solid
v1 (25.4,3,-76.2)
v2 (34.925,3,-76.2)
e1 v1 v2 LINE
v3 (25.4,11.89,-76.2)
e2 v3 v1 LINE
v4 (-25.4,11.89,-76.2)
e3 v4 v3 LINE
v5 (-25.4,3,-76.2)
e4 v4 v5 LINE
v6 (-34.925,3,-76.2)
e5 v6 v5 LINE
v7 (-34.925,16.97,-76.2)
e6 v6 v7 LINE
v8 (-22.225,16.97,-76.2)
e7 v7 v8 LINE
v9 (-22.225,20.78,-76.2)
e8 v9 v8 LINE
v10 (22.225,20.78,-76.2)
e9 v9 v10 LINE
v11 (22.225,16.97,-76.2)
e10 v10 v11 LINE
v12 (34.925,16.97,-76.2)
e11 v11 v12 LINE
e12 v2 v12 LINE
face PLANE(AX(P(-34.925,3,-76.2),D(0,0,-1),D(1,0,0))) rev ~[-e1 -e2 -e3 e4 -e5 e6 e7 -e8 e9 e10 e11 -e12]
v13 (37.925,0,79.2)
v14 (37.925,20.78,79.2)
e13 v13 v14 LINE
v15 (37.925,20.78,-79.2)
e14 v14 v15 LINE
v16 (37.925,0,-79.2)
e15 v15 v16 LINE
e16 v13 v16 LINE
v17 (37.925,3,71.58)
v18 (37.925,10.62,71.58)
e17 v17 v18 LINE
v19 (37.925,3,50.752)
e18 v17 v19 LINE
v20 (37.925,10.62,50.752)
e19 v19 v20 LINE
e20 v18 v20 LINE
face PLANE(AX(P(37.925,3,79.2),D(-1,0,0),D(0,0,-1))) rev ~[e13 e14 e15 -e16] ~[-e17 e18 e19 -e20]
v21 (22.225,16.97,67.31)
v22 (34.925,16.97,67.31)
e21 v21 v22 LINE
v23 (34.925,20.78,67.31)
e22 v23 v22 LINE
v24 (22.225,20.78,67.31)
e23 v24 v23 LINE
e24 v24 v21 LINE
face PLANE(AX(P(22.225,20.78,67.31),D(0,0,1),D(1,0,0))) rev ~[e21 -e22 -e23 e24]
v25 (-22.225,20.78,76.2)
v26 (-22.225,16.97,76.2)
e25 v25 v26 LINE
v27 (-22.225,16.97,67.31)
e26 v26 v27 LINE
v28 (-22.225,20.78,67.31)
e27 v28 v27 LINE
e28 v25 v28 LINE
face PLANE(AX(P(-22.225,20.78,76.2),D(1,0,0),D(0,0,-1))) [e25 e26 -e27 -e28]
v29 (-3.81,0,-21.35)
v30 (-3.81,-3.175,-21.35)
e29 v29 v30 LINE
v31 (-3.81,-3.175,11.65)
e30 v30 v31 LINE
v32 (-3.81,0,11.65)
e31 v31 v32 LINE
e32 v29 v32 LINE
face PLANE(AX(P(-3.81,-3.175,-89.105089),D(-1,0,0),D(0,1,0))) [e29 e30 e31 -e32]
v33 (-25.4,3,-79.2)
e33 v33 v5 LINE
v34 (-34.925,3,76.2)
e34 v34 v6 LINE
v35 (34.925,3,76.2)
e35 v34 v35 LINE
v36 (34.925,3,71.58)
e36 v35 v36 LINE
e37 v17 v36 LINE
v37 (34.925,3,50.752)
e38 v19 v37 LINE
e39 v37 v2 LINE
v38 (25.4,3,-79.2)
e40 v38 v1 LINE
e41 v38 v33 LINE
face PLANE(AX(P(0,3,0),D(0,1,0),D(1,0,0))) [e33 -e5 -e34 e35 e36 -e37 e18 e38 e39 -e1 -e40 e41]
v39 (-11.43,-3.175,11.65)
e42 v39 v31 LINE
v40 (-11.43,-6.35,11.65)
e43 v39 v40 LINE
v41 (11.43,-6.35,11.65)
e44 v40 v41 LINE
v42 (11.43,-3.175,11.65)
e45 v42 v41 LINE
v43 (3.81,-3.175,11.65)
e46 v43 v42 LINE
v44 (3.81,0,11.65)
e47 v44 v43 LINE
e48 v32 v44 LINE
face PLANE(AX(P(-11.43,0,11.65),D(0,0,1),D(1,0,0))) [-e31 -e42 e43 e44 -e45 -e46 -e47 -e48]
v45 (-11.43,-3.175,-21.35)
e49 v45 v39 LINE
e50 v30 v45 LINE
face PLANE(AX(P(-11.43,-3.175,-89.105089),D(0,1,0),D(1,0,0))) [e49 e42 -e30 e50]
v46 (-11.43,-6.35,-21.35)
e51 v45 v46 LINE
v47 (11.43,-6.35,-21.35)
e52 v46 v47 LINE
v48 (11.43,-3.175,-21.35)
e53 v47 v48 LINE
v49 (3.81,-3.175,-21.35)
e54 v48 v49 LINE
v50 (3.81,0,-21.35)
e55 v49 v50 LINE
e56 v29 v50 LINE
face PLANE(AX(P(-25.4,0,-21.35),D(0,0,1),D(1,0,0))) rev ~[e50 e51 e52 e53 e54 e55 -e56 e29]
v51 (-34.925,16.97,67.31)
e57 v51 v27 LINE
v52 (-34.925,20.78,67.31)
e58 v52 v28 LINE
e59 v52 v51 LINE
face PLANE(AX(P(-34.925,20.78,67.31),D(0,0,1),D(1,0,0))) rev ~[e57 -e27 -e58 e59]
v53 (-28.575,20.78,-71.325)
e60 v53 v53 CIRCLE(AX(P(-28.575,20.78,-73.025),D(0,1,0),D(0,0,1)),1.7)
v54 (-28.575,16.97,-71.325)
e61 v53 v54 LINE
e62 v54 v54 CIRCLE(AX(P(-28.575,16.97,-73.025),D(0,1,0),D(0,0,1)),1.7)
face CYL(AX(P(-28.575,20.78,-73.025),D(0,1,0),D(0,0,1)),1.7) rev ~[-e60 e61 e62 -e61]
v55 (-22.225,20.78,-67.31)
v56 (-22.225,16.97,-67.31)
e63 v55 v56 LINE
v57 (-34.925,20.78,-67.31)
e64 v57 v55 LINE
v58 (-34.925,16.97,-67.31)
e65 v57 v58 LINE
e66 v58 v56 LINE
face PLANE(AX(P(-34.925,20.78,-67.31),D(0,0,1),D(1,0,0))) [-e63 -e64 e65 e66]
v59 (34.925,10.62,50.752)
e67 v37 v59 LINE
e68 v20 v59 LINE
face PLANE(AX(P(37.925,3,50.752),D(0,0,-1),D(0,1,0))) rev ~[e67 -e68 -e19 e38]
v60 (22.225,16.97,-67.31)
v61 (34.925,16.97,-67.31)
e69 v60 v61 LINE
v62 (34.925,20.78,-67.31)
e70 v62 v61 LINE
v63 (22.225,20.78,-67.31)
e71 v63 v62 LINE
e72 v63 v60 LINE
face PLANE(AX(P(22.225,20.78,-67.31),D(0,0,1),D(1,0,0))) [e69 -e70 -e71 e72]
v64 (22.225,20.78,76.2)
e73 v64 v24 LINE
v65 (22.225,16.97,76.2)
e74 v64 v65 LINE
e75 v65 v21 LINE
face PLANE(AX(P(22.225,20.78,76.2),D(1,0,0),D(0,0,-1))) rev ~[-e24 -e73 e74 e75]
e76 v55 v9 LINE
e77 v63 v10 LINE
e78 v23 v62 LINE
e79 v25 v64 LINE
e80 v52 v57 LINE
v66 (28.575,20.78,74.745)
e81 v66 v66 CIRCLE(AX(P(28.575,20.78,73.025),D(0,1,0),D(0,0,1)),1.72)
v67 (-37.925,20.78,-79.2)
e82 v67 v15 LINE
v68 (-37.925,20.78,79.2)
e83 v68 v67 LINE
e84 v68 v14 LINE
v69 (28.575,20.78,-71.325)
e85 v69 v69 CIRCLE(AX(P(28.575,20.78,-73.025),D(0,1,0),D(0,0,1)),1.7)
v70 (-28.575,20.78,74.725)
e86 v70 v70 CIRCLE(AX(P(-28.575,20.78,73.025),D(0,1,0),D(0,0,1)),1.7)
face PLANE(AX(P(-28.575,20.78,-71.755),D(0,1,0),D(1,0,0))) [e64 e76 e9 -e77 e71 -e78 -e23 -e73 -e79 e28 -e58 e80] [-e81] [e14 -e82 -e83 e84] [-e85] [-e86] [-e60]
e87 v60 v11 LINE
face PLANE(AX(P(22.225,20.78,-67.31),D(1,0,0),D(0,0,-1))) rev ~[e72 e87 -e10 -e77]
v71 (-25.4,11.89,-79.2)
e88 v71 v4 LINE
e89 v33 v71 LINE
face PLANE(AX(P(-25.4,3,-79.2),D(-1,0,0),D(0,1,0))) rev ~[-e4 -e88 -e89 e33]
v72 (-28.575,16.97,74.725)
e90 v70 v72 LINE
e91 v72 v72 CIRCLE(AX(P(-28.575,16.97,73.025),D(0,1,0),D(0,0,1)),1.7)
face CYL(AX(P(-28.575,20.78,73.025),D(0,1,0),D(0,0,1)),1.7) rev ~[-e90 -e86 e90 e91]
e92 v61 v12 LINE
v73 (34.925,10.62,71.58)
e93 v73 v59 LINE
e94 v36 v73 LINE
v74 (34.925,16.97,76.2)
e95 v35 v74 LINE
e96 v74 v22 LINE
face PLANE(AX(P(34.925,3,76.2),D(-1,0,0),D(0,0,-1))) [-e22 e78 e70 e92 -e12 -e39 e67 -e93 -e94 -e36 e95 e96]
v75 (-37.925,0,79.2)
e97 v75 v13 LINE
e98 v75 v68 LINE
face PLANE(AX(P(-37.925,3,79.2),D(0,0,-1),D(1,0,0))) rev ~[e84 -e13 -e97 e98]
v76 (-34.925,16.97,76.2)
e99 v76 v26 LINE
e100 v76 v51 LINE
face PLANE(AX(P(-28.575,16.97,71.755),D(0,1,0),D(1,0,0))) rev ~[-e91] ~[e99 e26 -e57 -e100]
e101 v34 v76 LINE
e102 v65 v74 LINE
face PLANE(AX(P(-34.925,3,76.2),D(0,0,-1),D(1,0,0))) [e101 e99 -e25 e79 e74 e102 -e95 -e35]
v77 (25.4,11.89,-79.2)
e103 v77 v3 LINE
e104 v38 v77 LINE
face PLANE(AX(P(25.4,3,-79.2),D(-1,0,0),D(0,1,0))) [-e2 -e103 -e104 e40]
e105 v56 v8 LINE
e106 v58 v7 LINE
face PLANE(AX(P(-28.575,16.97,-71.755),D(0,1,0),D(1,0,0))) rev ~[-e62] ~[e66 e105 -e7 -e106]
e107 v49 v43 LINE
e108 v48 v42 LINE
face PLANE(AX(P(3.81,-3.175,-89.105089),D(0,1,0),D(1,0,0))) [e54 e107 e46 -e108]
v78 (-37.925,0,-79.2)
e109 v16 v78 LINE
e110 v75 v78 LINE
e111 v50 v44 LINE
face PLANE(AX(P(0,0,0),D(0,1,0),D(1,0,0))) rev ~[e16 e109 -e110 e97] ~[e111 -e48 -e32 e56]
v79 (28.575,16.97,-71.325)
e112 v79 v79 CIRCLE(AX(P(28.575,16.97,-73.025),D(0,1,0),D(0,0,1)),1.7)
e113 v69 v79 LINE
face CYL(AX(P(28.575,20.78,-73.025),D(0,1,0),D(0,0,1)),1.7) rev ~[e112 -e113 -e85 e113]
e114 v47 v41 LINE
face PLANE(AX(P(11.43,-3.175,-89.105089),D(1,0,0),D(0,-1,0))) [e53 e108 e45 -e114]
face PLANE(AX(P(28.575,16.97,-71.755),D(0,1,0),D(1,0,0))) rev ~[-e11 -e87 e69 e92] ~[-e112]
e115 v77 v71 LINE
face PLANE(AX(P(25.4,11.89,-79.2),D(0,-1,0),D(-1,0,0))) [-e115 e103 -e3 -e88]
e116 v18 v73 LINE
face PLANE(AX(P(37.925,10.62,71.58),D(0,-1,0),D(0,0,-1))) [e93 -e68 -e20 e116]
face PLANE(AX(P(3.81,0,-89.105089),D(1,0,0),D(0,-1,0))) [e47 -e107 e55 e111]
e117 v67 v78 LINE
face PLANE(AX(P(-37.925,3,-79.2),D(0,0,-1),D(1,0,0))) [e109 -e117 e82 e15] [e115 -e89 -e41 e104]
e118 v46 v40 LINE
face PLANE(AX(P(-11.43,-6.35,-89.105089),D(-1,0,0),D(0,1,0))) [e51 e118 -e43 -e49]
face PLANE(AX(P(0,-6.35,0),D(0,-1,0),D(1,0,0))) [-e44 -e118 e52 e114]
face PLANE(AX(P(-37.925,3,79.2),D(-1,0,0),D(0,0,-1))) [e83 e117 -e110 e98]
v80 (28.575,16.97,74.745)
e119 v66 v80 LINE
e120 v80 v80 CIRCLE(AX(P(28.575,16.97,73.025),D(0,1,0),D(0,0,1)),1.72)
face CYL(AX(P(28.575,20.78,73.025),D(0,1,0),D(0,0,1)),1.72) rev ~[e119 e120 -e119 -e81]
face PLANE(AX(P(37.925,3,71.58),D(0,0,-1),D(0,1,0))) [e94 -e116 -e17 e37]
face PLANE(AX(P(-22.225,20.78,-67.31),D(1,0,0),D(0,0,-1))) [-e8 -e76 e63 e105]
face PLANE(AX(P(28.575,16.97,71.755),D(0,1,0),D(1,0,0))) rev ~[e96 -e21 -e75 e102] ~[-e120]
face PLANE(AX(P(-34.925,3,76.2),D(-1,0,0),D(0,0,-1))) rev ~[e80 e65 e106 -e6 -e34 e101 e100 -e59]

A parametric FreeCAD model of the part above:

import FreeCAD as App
import Part
import Sketcher
from FreeCAD import Vector
Q = App.Units.Quantity

doc = App.newDocument("Part")
body = doc.addObject("PartDesign::Body", "Body")

# Sketch on XZ plane
sketch1 = doc.addObject("Sketcher::SketchObject", "Sketch")
body.addObject(sketch1)
sketch1.AttachmentSupport = (doc.XZ_Plane, [""])
sketch1.MapMode = "FlatFace"
sketch1.addGeometry(Part.LineSegment(Vector(-38, -79, 0), Vector(-38, 79, 0)), False)
sketch1.addGeometry(Part.LineSegment(Vector(-38, 79, 0), Vector(38, 79, 0)), False)
sketch1.addGeometry(Part.LineSegment(Vector(38, 79, 0), Vector(38, -79, 0)), False)
sketch1.addGeometry(Part.LineSegment(Vector(38, -79, 0), Vector(-38, -79, 0)), False)
sketch1.addConstraint(Sketcher.Constraint("Coincident", 0, 2, 1, 1))
sketch1.addConstraint(Sketcher.Constraint("Coincident", 1, 2, 2, 1))
sketch1.addConstraint(Sketcher.Constraint("Coincident", 2, 2, 3, 1))
sketch1.addConstraint(Sketcher.Constraint("Coincident", 3, 2, 0, 1))
sketch1.addConstraint(Sketcher.Constraint("Vertical", 0))
sketch1.addConstraint(Sketcher.Constraint("Horizontal", 1))
sketch1.addConstraint(Sketcher.Constraint("Vertical", 2))
sketch1.addConstraint(Sketcher.Constraint("Horizontal", 3))
sketch1.addConstraint(Sketcher.Constraint("Symmetric", 0, 2, 2, 2, -1, 1))
sketch1.addConstraint(Sketcher.Constraint("DistanceX", 1, 1, 1, 2, 75.85))
sketch1.addConstraint(Sketcher.Constraint("DistanceY", 0, 1, 0, 2, 158.4))
pad1 = doc.addObject("PartDesign::Pad", "Pad")
body.addObject(pad1)
pad1.Profile = sketch1
pad1.Length = 3
pad1.Reversed = True

# Sketch on XZ plane
sketch2 = doc.addObject("Sketcher::SketchObject", "Sketch001")
body.addObject(sketch2)
sketch2.AttachmentSupport = (doc.XZ_Plane, [""])
sketch2.MapMode = "FlatFace"
sketch2.AttachmentOffset = App.Placement(Vector(0, 0, -3), App.Rotation())
sketch2.addGeometry(Part.LineSegment(Vector(-38, -79, 0), Vector(-38, 79, 0)), False)
sketch2.addGeometry(Part.LineSegment(Vector(-38, 79, 0), Vector(38, 79, 0)), False)
sketch2.addGeometry(Part.LineSegment(Vector(38, 79, 0), Vector(38, -79, 0)), False)
sketch2.addGeometry(Part.LineSegment(Vector(38, -79, 0), Vector(-38, -79, 0)), False)
sketch2.addGeometry(Part.LineSegment(Vector(35, 76, 0), Vector(-35, 76, 0)), False)
sketch2.addGeometry(Part.LineSegment(Vector(-35, 76, 0), Vector(-35, -76, 0)), False)
sketch2.addGeometry(Part.LineSegment(Vector(-35, -76, 0), Vector(35, -76, 0)), False)
sketch2.addGeometry(Part.LineSegment(Vector(35, -76, 0), Vector(35, 76, 0)), False)
sketch2.addConstraint(Sketcher.Constraint("Coincident", 0, 2, 1, 1))
sketch2.addConstraint(Sketcher.Constraint("Coincident", 1, 2, 2, 1))
sketch2.addConstraint(Sketcher.Constraint("Coincident", 2, 2, 3, 1))
sketch2.addConstraint(Sketcher.Constraint("Coincident", 3, 2, 0, 1))
sketch2.addConstraint(Sketcher.Constraint("Coincident", 4, 2, 5, 1))
sketch2.addConstraint(Sketcher.Constraint("Coincident", 5, 2, 6, 1))
sketch2.addConstraint(Sketcher.Constraint("Coincident", 6, 2, 7, 1))
sketch2.addConstraint(Sketcher.Constraint("Coincident", 7, 2, 4, 1))
sketch2.addConstraint(Sketcher.Constraint("Vertical", 0))
sketch2.addConstraint(Sketcher.Constraint("Horizontal", 1))
sketch2.addConstraint(Sketcher.Constraint("Vertical", 2))
sketch2.addConstraint(Sketcher.Constraint("Horizontal", 3))
sketch2.addConstraint(Sketcher.Constraint("Horizontal", 4))
sketch2.addConstraint(Sketcher.Constraint("Vertical", 5))
sketch2.addConstraint(Sketcher.Constraint("Horizontal", 6))
sketch2.addConstraint(Sketcher.Constraint("Vertical", 7))
sketch2.addConstraint(Sketcher.Constraint("Symmetric", 0, 2, 2, 2, -1, 1))
sketch2.addConstraint(Sketcher.Constraint("Symmetric", 4, 2, 6, 2, -1, 1))
sketch2.addConstraint(Sketcher.Constraint("DistanceY", 5, 2, 5, 1, Q("6 in")))
sketch2.addConstraint(Sketcher.Constraint("DistanceX", 4, 2, 4, 1, Q("2.75 in")))
sketch2.addConstraint(Sketcher.Constraint("DistanceX", 1, 1, 1, 2, 75.85))
sketch2.addConstraint(Sketcher.Constraint("DistanceY", 0, 1, 0, 2, 158.4))
pad2 = doc.addObject("PartDesign::Pad", "Pad001")
body.addObject(pad2)
pad2.Profile = sketch2
pad2.Length = Q("0.7 in")
pad2.Reversed = True

# Sketch on XZ plane
sketch3 = doc.addObject("Sketcher::SketchObject", "Sketch002")
body.addObject(sketch3)
sketch3.AttachmentSupport = (doc.XZ_Plane, [""])
sketch3.MapMode = "FlatFace"
sketch3.AttachmentOffset = App.Placement(Vector(0, 0, -20.78), App.Rotation())
sketch3.addGeometry(Part.LineSegment(Vector(-35, -76, 0), Vector(-35, -67, 0)), False)
sketch3.addGeometry(Part.LineSegment(Vector(-35, -67, 0), Vector(-22, -67, 0)), False)
sketch3.addGeometry(Part.LineSegment(Vector(-22, -67, 0), Vector(-22, -76, 0)), False)
sketch3.addGeometry(Part.LineSegment(Vector(-22, -76, 0), Vector(-35, -76, 0)), False)
sketch3.addGeometry(Part.LineSegment(Vector(-35, 67, 0), Vector(-35, 76, 0)), False)
sketch3.addGeometry(Part.LineSegment(Vector(-35, 76, 0), Vector(-22, 76, 0)), False)
sketch3.addGeometry(Part.LineSegment(Vector(-22, 76, 0), Vector(-22, 67, 0)), False)
sketch3.addGeometry(Part.LineSegment(Vector(-22, 67, 0), Vector(-35, 67, 0)), False)
sketch3.addGeometry(Part.LineSegment(Vector(22, -76, 0), Vector(22, -67, 0)), False)
sketch3.addGeometry(Part.LineSegment(Vector(22, -67, 0), Vector(35, -67, 0)), False)
sketch3.addGeometry(Part.LineSegment(Vector(35, -67, 0), Vector(35, -76, 0)), False)
sketch3.addGeometry(Part.LineSegment(Vector(35, -76, 0), Vector(22, -76, 0)), False)
sketch3.addGeometry(Part.LineSegment(Vector(22, 67, 0), Vector(22, 76, 0)), False)
sketch3.addGeometry(Part.LineSegment(Vector(22, 76, 0), Vector(35, 76, 0)), False)
sketch3.addGeometry(Part.LineSegment(Vector(35, 76, 0), Vector(35, 67, 0)), False)
sketch3.addGeometry(Part.LineSegment(Vector(35, 67, 0), Vector(22, 67, 0)), False)
sketch3.addConstraint(Sketcher.Constraint("Coincident", 0, 2, 1, 1))
sketch3.addConstraint(Sketcher.Constraint("Coincident", 1, 2, 2, 1))
sketch3.addConstraint(Sketcher.Constraint("Coincident", 2, 2, 3, 1))
sketch3.addConstraint(Sketcher.Constraint("Coincident", 3, 2, 0, 1))
sketch3.addConstraint(Sketcher.Constraint("Coincident", 4, 2, 5, 1))
sketch3.addConstraint(Sketcher.Constraint("Coincident", 5, 2, 6, 1))
sketch3.addConstraint(Sketcher.Constraint("Coincident", 6, 2, 7, 1))
sketch3.addConstraint(Sketcher.Constraint("Coincident", 7, 2, 4, 1))
sketch3.addConstraint(Sketcher.Constraint("Coincident", 8, 2, 9, 1))
sketch3.addConstraint(Sketcher.Constraint("Coincident", 9, 2, 10, 1))
sketch3.addConstraint(Sketcher.Constraint("Coincident", 10, 2, 11, 1))
sketch3.addConstraint(Sketcher.Constraint("Coincident", 11, 2, 8, 1))
sketch3.addConstraint(Sketcher.Constraint("Coincident", 12, 2, 13, 1))
sketch3.addConstraint(Sketcher.Constraint("Coincident", 13, 2, 14, 1))
sketch3.addConstraint(Sketcher.Constraint("Coincident", 14, 2, 15, 1))
sketch3.addConstraint(Sketcher.Constraint("Coincident", 15, 2, 12, 1))
sketch3.addConstraint(Sketcher.Constraint("Vertical", 0))
sketch3.addConstraint(Sketcher.Constraint("Horizontal", 1))
sketch3.addConstraint(Sketcher.Constraint("Vertical", 2))
sketch3.addConstraint(Sketcher.Constraint("Horizontal", 3))
sketch3.addConstraint(Sketcher.Constraint("Vertical", 4))
sketch3.addConstraint(Sketcher.Constraint("Horizontal", 5))
sketch3.addConstraint(Sketcher.Constraint("Vertical", 6))
sketch3.addConstraint(Sketcher.Constraint("Horizontal", 7))
sketch3.addConstraint(Sketcher.Constraint("Vertical", 8))
sketch3.addConstraint(Sketcher.Constraint("Horizontal", 9))
sketch3.addConstraint(Sketcher.Constraint("Vertical", 10))
sketch3.addConstraint(Sketcher.Constraint("Horizontal", 11))
sketch3.addConstraint(Sketcher.Constraint("Vertical", 12))
sketch3.addConstraint(Sketcher.Constraint("Horizontal", 13))
sketch3.addConstraint(Sketcher.Constraint("Vertical", 14))
sketch3.addConstraint(Sketcher.Constraint("Horizontal", 15))
sketch3.addConstraint(Sketcher.Constraint("Symmetric", 6, 2, 8, 2, -1, 1))
sketch3.addConstraint(Sketcher.Constraint("Symmetric", 4, 2, 10, 2, -1, 1))
sketch3.addConstraint(Sketcher.Constraint("Symmetric", 2, 2, 12, 2, -1, 1))
sketch3.addConstraint(Sketcher.Constraint("Symmetric", 0, 2, 14, 2, -1, 1))
sketch3.addConstraint(Sketcher.Constraint("Symmetric", 1, 2, 8, 2, -2))
sketch3.addConstraint(Sketcher.Constraint("Symmetric", 3, 2, 10, 2, -2))
sketch3.addConstraint(Sketcher.Constraint("DistanceX", 1, 1, 1, 2, Q("0.5 in")))
sketch3.addConstraint(Sketcher.Constraint("DistanceY", 2, 2, -1, 1, Q("3 in")))
sketch3.addConstraint(Sketcher.Constraint("DistanceY", 0, 1, 0, 2, Q("0.35 in")))
sketch3.addConstraint(Sketcher.Constraint("DistanceX", 1, 2, 8, 2, Q("1.75 in")))
pad3 = doc.addObject("PartDesign::Pad", "Pad002")
body.addObject(pad3)
pad3.Profile = sketch3
pad3.Length = Q("0.15 in")

# Sketch on XZ plane
sketch4 = doc.addObject("Sketcher::SketchObject", "Sketch003")
body.addObject(sketch4)
sketch4.AttachmentSupport = (doc.XZ_Plane, [""])
sketch4.MapMode = "FlatFace"
sketch4.addGeometry(Part.LineSegment(Vector(-25, 21, 0), Vector(-25, -21, 0)), False)
sketch4.addGeometry(Part.LineSegment(Vector(-25, -21, 0), Vector(25, -21, 0)), False)
sketch4.addGeometry(Part.LineSegment(Vector(25, -21, 0), Vector(25, 21, 0)), False)
sketch4.addGeometry(Part.LineSegment(Vector(25, 21, 0), Vector(-25, 21, 0)), False)
sketch4.addConstraint(Sketcher.Constraint("Coincident", 0, 2, 1, 1))
sketch4.addConstraint(Sketcher.Constraint("Coincident", 1, 2, 2, 1))
sketch4.addConstraint(Sketcher.Constraint("Coincident", 2, 2, 3, 1))
sketch4.addConstraint(Sketcher.Constraint("Coincident", 3, 2, 0, 1))
sketch4.addConstraint(Sketcher.Constraint("Vertical", 0))
sketch4.addConstraint(Sketcher.Constraint("Horizontal", 1))
sketch4.addConstraint(Sketcher.Constraint("Vertical", 2))
sketch4.addConstraint(Sketcher.Constraint("Horizontal", 3))
sketch4.addConstraint(Sketcher.Constraint("Symmetric", 0, 2, 2, 2, -1, 1))
sketch4.addConstraint(Sketcher.Constraint("DistanceX", 1, 1, 1, 2, Q("2 in")))
sketch4.addConstraint(Sketcher.Constraint("DistanceY", 0, 2, 0, 1, 42.7))
pad4 = doc.addObject("PartDesign::Pad", "Pad003")
body.addObject(pad4)
pad4.Profile = sketch4
pad4.Length = Q("0.25 in")

# Sketch on XY plane
sketch5 = doc.addObject("Sketcher::SketchObject", "Sketch004")
body.addObject(sketch5)
sketch5.AttachmentSupport = (doc.XY_Plane, [""])
sketch5.MapMode = "FlatFace"
sketch5.AttachmentOffset = App.Placement(Vector(0, 0, 21.35), App.Rotation())
sketch5.addGeometry(Part.LineSegment(Vector(-3.8, -3.2, 0), Vector(-3.8, 0, 0)), False)
sketch5.addGeometry(Part.LineSegment(Vector(-3.8, 0, 0), Vector(-25.4, 0, 0)), False)
sketch5.addGeometry(Part.LineSegment(Vector(-25.4, 0, 0), Vector(-25.4, -6.3, 0)), False)
sketch5.addGeometry(Part.LineSegment(Vector(-25.4, -6.3, 0), Vector(-11.4, -6.3, 0)), False)
sketch5.addGeometry(Part.LineSegment(Vector(-11.4, -6.3, 0), Vector(-11.4, -3.2, 0)), False)
sketch5.addGeometry(Part.LineSegment(Vector(-11.4, -3.2, 0), Vector(-3.8, -3.2, 0)), False)
sketch5.addGeometry(Part.LineSegment(Vector(25.4, 0, 0), Vector(3.8, 0, 0)), False)
sketch5.addGeometry(Part.LineSegment(Vector(3.8, 0, 0), Vector(3.8, -3.2, 0)), False)
sketch5.addGeometry(Part.LineSegment(Vector(3.8, -3.2, 0), Vector(11.4, -3.2, 0)), False)
sketch5.addGeometry(Part.LineSegment(Vector(11.4, -3.2, 0), Vector(11.4, -6.3, 0)), False)
sketch5.addGeometry(Part.LineSegment(Vector(11.4, -6.3, 0), Vector(25.4, -6.3, 0)), False)
sketch5.addGeometry(Part.LineSegment(Vector(25.4, -6.3, 0), Vector(25.4, 0, 0)), False)
sketch5.addConstraint(Sketcher.Constraint("Coincident", 0, 2, 1, 1))
sketch5.addConstraint(Sketcher.Constraint("Coincident", 1, 2, 2, 1))
sketch5.addConstraint(Sketcher.Constraint("Coincident", 2, 2, 3, 1))
sketch5.addConstraint(Sketcher.Constraint("Coincident", 3, 2, 4, 1))
sketch5.addConstraint(Sketcher.Constraint("Coincident", 4, 2, 5, 1))
sketch5.addConstraint(Sketcher.Constraint("Coincident", 5, 2, 0, 1))
sketch5.addConstraint(Sketcher.Constraint("Coincident", 6, 2, 7, 1))
sketch5.addConstraint(Sketcher.Constraint("Coincident", 7, 2, 8, 1))
sketch5.addConstraint(Sketcher.Constraint("Coincident", 8, 2, 9, 1))
sketch5.addConstraint(Sketcher.Constraint("Coincident", 9, 2, 10, 1))
sketch5.addConstraint(Sketcher.Constraint("Coincident", 10, 2, 11, 1))
sketch5.addConstraint(Sketcher.Constraint("Coincident", 11, 2, 6, 1))
sketch5.addConstraint(Sketcher.Constraint("Vertical", 0))
sketch5.addConstraint(Sketcher.Constraint("Horizontal", 1))
sketch5.addConstraint(Sketcher.Constraint("Vertical", 2))
sketch5.addConstraint(Sketcher.Constraint("Horizontal", 3))
sketch5.addConstraint(Sketcher.Constraint("Vertical", 4))
sketch5.addConstraint(Sketcher.Constraint("Horizontal", 5))
sketch5.addConstraint(Sketcher.Constraint("Horizontal", 6))
sketch5.addConstraint(Sketcher.Constraint("Vertical", 7))
sketch5.addConstraint(Sketcher.Constraint("Horizontal", 8))
sketch5.addConstraint(Sketcher.Constraint("Vertical", 9))
sketch5.addConstraint(Sketcher.Constraint("Horizontal", 10))
sketch5.addConstraint(Sketcher.Constraint("Vertical", 11))
sketch5.addConstraint(Sketcher.Constraint("Symmetric", 0, 2, 6, 2, -1, 1))
sketch5.addConstraint(Sketcher.Constraint("Symmetric", 4, 2, 8, 2, -2))
sketch5.addConstraint(Sketcher.Constraint("Symmetric", 2, 2, 10, 2, -2))
sketch5.addConstraint(Sketcher.Constraint("PointOnObject", 0, 2, -1))
sketch5.addConstraint(Sketcher.Constraint("Equal", 0, 4))
sketch5.addConstraint(Sketcher.Constraint("DistanceX", 5, 1, 5, 2, Q("0.3 in")))
sketch5.addConstraint(Sketcher.Constraint("DistanceX", 1, 2, -1, 1, Q("1 in")))
sketch5.addConstraint(Sketcher.Constraint("DistanceX", 1, 2, 1, 1, Q("0.85 in")))
sketch5.addConstraint(Sketcher.Constraint("DistanceY", 2, 2, 2, 1, Q("0.25 in")))
pocket1 = doc.addObject("PartDesign::Pocket", "Pocket")
body.addObject(pocket1)
pocket1.Profile = sketch5
pocket1.Type = "ThroughAll"
pocket1.Midplane = True

# Sketch on XZ plane
sketch6 = doc.addObject("Sketcher::SketchObject", "Sketch005")
body.addObject(sketch6)
sketch6.AttachmentSupport = (doc.XZ_Plane, [""])
sketch6.MapMode = "FlatFace"
sketch6.addGeometry(Part.LineSegment(Vector(-11, 21, 0), Vector(-11, 12, 0)), False)
sketch6.addGeometry(Part.LineSegment(Vector(-11, 12, 0), Vector(11, 12, 0)), False)
sketch6.addGeometry(Part.LineSegment(Vector(11, 12, 0), Vector(11, 21, 0)), False)
sketch6.addGeometry(Part.LineSegment(Vector(11, 21, 0), Vector(-11, 21, 0)), False)
sketch6.addConstraint(Sketcher.Constraint("Coincident", 0, 2, 1, 1))
sketch6.addConstraint(Sketcher.Constraint("Coincident", 1, 2, 2, 1))
sketch6.addConstraint(Sketcher.Constraint("Coincident", 2, 2, 3, 1))
sketch6.addConstraint(Sketcher.Constraint("Coincident", 3, 2, 0, 1))
sketch6.addConstraint(Sketcher.Constraint("Vertical", 0))
sketch6.addConstraint(Sketcher.Constraint("Horizontal", 1))
sketch6.addConstraint(Sketcher.Constraint("Vertical", 2))
sketch6.addConstraint(Sketcher.Constraint("Horizontal", 3))
sketch6.addConstraint(Sketcher.Constraint("DistanceX", 1, 1, 1, 2, Q("0.9 in")))
sketch6.addConstraint(Sketcher.Constraint("DistanceX", 0, 2, -1, 1, Q("0.45 in")))
sketch6.addConstraint(Sketcher.Constraint("DistanceY", 0, 2, 0, 1, 9.7))
sketch6.addConstraint(Sketcher.Constraint("DistanceY", -1, 1, 0, 2, 11.65))
pocket2 = doc.addObject("PartDesign::Pocket", "Pocket001")
body.addObject(pocket2)
pocket2.Profile = sketch6
pocket2.Length = Q("0.25 in")
pocket2.Reversed = True

# Sketch on XZ plane
sketch7 = doc.addObject("Sketcher::SketchObject", "Sketch006")
body.addObject(sketch7)
sketch7.AttachmentSupport = (doc.XZ_Plane, [""])
sketch7.MapMode = "FlatFace"
sketch7.AttachmentOffset = App.Placement(Vector(0, 0, -20.78), App.Rotation())
sketch7.addGeometry(Part.Circle(Vector(-28.6, -73, 0), Vector(0, 0, 1), 1.7), False)
sketch7.addConstraint(Sketcher.Constraint("Diameter", 0, 3.4))
sketch7.addConstraint(Sketcher.Constraint("DistanceX", 0, 3, -1, 1, Q("1.125 in")))
sketch7.addConstraint(Sketcher.Constraint("DistanceY", 0, 3, -1, 1, Q("2.875 in")))
pocket3 = doc.addObject("PartDesign::Pocket", "Pocket002")
body.addObject(pocket3)
pocket3.Profile = sketch7
pocket3.Type = "UpToFirst"
pocket3.Reversed = True

# Sketch on XZ plane
sketch8 = doc.addObject("Sketcher::SketchObject", "Sketch007")
body.addObject(sketch8)
sketch8.AttachmentSupport = (doc.XZ_Plane, [""])
sketch8.MapMode = "FlatFace"
sketch8.AttachmentOffset = App.Placement(Vector(0, 0, -20.78), App.Rotation())
sketch8.addGeometry(Part.Circle(Vector(28.6, -73, 0), Vector(0, 0, 1), 1.7), False)
sketch8.addConstraint(Sketcher.Constraint("Diameter", 0, 3.4))
sketch8.addConstraint(Sketcher.Constraint("DistanceX", -1, 1, 0, 3, Q("1.125 in")))
sketch8.addConstraint(Sketcher.Constraint("DistanceY", 0, 3, -1, 1, Q("2.875 in")))
pocket4 = doc.addObject("PartDesign::Pocket", "Pocket003")
body.addObject(pocket4)
pocket4.Profile = sketch8
pocket4.Type = "UpToFirst"
pocket4.Reversed = True

# Sketch on XZ plane
sketch9 = doc.addObject("Sketcher::SketchObject", "Sketch008")
body.addObject(sketch9)
sketch9.AttachmentSupport = (doc.XZ_Plane, [""])
sketch9.MapMode = "FlatFace"
sketch9.AttachmentOffset = App.Placement(Vector(0, 0, -20.78), App.Rotation())
sketch9.addGeometry(Part.Circle(Vector(28.6, 73, 0), Vector(0, 0, 1), 1.7), False)
sketch9.addConstraint(Sketcher.Constraint("Diameter", 0, 3.44))
sketch9.addConstraint(Sketcher.Constraint("DistanceX", -1, 1, 0, 3, Q("1.125 in")))
sketch9.addConstraint(Sketcher.Constraint("DistanceY", -1, 1, 0, 3, Q("2.875 in")))
pocket5 = doc.addObject("PartDesign::Pocket", "Pocket004")
body.addObject(pocket5)
pocket5.Profile = sketch9
pocket5.Type = "UpToFirst"
pocket5.Reversed = True

# Sketch on XZ plane
sketch10 = doc.addObject("Sketcher::SketchObject", "Sketch009")
body.addObject(sketch10)
sketch10.AttachmentSupport = (doc.XZ_Plane, [""])
sketch10.MapMode = "FlatFace"
sketch10.AttachmentOffset = App.Placement(Vector(0, 0, -20.78), App.Rotation())
sketch10.addGeometry(Part.Circle(Vector(-28.6, 73, 0), Vector(0, 0, 1), 1.7), False)
sketch10.addConstraint(Sketcher.Constraint("Diameter", 0, 3.4))
sketch10.addConstraint(Sketcher.Constraint("DistanceX", 0, 3, -1, 1, Q("1.125 in")))
sketch10.addConstraint(Sketcher.Constraint("DistanceY", -1, 1, 0, 3, Q("2.875 in")))
pocket6 = doc.addObject("PartDesign::Pocket", "Pocket005")
body.addObject(pocket6)
pocket6.Profile = sketch10
pocket6.Type = "UpToFirst"
pocket6.Reversed = True

# Sketch on XY plane
sketch11 = doc.addObject("Sketcher::SketchObject", "Sketch010")
body.addObject(sketch11)
sketch11.AttachmentSupport = (doc.XY_Plane, [""])
sketch11.MapMode = "FlatFace"
sketch11.AttachmentOffset = App.Placement(Vector(0, 0, -79.2), App.Rotation())
sketch11.addGeometry(Part.LineSegment(Vector(25, 12, 0), Vector(25, 3, 0)), False)
sketch11.addGeometry(Part.LineSegment(Vector(25, 3, 0), Vector(-25, 3, 0)), False)
sketch11.addGeometry(Part.LineSegment(Vector(-25, 3, 0), Vector(-25, 12, 0)), False)
sketch11.addGeometry(Part.LineSegment(Vector(-25, 12, 0), Vector(25, 12, 0)), False)
sketch11.addConstraint(Sketcher.Constraint("Coincident", 0, 2, 1, 1))
sketch11.addConstraint(Sketcher.Constraint("Coincident", 1, 2, 2, 1))
sketch11.addConstraint(Sketcher.Constraint("Coincident", 2, 2, 3, 1))
sketch11.addConstraint(Sketcher.Constraint("Coincident", 3, 2, 0, 1))
sketch11.addConstraint(Sketcher.Constraint("Vertical", 0))
sketch11.addConstraint(Sketcher.Constraint("Horizontal", 1))
sketch11.addConstraint(Sketcher.Constraint("Vertical", 2))
sketch11.addConstraint(Sketcher.Constraint("Horizontal", 3))
sketch11.addConstraint(Sketcher.Constraint("DistanceX", 1, 2, 1, 1, Q("2 in")))
sketch11.addConstraint(Sketcher.Constraint("DistanceX", -1, 1, 0, 2, Q("1 in")))
sketch11.addConstraint(Sketcher.Constraint("DistanceY", 0, 2, 0, 1, Q("0.35 in")))
sketch11.addConstraint(Sketcher.Constraint("DistanceY", -1, 1, 0, 2, 3.0))
pocket7 = doc.addObject("PartDesign::Pocket", "Pocket006")
body.addObject(pocket7)
pocket7.Profile = sketch11
pocket7.Type = "UpToFirst"
pocket7.Reversed = True

# Sketch on YZ plane
sketch12 = doc.addObject("Sketcher::SketchObject", "Sketch011")
body.addObject(sketch12)
sketch12.AttachmentSupport = (doc.YZ_Plane, [""])
sketch12.MapMode = "FlatFace"
sketch12.AttachmentOffset = App.Placement(Vector(0, 0, 37.925), App.Rotation())
sketch12.addGeometry(Part.LineSegment(Vector(11, 72, 0), Vector(3, 72, 0)), False)
sketch12.addGeometry(Part.LineSegment(Vector(3, 72, 0), Vector(3, 51, 0)), False)
sketch12.addGeometry(Part.LineSegment(Vector(3, 51, 0), Vector(11, 51, 0)), False)
sketch12.addGeometry(Part.LineSegment(Vector(11, 51, 0), Vector(11, 72, 0)), False)
sketch12.addConstraint(Sketcher.Constraint("Coincident", 0, 2, 1, 1))
sketch12.addConstraint(Sketcher.Constraint("Coincident", 1, 2, 2, 1))
sketch12.addConstraint(Sketcher.Constraint("Coincident", 2, 2, 3, 1))
sketch12.addConstraint(Sketcher.Constraint("Coincident", 3, 2, 0, 1))
sketch12.addConstraint(Sketcher.Constraint("Horizontal", 0))
sketch12.addConstraint(Sketcher.Constraint("Vertical", 1))
sketch12.addConstraint(Sketcher.Constraint("Horizontal", 2))
sketch12.addConstraint(Sketcher.Constraint("Vertical", 3))
sketch12.addConstraint(Sketcher.Constraint("DistanceX", 0, 2, 0, 1, Q("0.3 in")))
sketch12.addConstraint(Sketcher.Constraint("DistanceY", 1, 2, 1, 1, Q("0.82 in")))
sketch12.addConstraint(Sketcher.Constraint("DistanceX", -1, 1, 0, 2, 3.0))
sketch12.addConstraint(Sketcher.Constraint("DistanceY", -1, 1, 0, 2, 71.58))
pocket8 = doc.addObject("PartDesign::Pocket", "Pocket007")
body.addObject(pocket8)
pocket8.Profile = sketch12
pocket8.Type = "UpToFirst"

doc.recompute()
